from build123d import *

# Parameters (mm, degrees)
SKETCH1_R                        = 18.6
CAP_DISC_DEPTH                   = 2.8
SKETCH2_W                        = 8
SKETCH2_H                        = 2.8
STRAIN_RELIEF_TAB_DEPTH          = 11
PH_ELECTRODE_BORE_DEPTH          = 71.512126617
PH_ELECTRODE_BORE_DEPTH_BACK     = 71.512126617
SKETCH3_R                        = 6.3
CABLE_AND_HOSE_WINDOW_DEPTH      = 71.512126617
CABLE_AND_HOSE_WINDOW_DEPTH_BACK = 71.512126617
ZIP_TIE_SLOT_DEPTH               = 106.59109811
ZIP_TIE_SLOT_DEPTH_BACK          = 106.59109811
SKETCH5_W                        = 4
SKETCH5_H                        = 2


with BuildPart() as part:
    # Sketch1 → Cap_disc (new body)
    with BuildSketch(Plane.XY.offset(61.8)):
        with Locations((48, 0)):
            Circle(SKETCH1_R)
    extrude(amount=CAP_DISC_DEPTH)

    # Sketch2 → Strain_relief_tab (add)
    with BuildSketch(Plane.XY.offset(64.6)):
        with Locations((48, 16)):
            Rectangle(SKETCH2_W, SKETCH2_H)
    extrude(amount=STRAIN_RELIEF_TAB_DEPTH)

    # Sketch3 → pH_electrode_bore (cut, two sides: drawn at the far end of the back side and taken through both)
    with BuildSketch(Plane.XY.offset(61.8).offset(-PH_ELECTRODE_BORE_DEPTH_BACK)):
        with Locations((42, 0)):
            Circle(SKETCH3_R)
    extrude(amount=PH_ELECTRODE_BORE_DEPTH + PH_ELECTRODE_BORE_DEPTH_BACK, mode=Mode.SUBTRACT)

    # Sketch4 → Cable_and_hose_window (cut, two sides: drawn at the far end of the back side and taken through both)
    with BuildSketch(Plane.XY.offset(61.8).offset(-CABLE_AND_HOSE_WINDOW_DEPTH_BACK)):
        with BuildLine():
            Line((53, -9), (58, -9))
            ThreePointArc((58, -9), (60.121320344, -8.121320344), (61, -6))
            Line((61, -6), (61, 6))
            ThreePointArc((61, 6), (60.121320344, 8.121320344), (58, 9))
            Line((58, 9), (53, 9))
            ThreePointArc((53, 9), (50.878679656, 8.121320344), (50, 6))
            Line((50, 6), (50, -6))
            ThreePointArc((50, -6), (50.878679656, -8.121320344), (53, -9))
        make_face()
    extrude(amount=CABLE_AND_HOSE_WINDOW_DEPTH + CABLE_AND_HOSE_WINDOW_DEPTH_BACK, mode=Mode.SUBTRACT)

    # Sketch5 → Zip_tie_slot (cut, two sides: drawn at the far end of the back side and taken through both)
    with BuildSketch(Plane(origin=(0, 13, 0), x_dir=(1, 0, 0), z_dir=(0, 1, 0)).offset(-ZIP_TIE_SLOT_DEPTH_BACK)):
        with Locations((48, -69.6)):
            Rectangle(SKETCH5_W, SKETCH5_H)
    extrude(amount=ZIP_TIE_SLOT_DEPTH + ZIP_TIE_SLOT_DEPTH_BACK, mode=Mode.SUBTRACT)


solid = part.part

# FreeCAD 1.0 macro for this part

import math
import FreeCAD as App
import Part
import Sketcher

V = App.Vector


def add_polygon(sketch, points):
    """Adds a closed chain of lines whose ends are joined by coincident constraints."""
    first, n = sketch.GeometryCount, len(points)
    for a, b in zip(points, points[1:] + points[:1]):
        sketch.addGeometry(Part.LineSegment(App.Vector(*a, 0), App.Vector(*b, 0)), False)
    for i in range(n):
        sketch.addConstraint(Sketcher.Constraint("Coincident", first + i, 2, first + (i + 1) % n, 1))

doc = App.newDocument("Part")
body = doc.addObject("PartDesign::Body", "Body")

sketch1 = body.newObject("Sketcher::SketchObject", "Sketch")
sketch1.AttachmentSupport = (doc.getObject("XY_Plane"), [""])
sketch1.MapMode = "FlatFace"
sketch1.AttachmentOffset = App.Placement(V(0, 0, 61.8), App.Rotation())
sketch1.addGeometry(Part.Circle(V(48, 0, 0), V(0, 0, 1), 19), False)
sketch1.addConstraint(Sketcher.Constraint("PointOnObject", 0, 3, -1))
sketch1.addConstraint(Sketcher.Constraint("Diameter", 0, 37.2))
sketch1.addConstraint(Sketcher.Constraint("DistanceX", -1, 1, 0, 3, 48.0))
pad1 = body.newObject("PartDesign::Pad", "Pad")
pad1.Profile = sketch1
pad1.Length = 2.8

sketch2 = body.newObject("Sketcher::SketchObject", "Sketch001")
sketch2.AttachmentSupport = (doc.getObject("XY_Plane"), [""])
sketch2.MapMode = "FlatFace"
sketch2.AttachmentOffset = App.Placement(V(0, 0, 64.6), App.Rotation())
add_polygon(sketch2, [(44, 17.4), (44, 14.6), (52, 14.6), (52, 17.4)])
sketch2.addConstraint(Sketcher.Constraint("Vertical", 0))
sketch2.addConstraint(Sketcher.Constraint("Horizontal", 1))
sketch2.addConstraint(Sketcher.Constraint("Vertical", 2))
sketch2.addConstraint(Sketcher.Constraint("Horizontal", 3))
sketch2.addConstraint(Sketcher.Constraint("DistanceX", 1, 1, 1, 2, 8.0))
sketch2.addConstraint(Sketcher.Constraint("DistanceY", 0, 2, 0, 1, 2.8))
sketch2.addConstraint(Sketcher.Constraint("DistanceX", -1, 1, 0, 2, 44.0))
sketch2.addConstraint(Sketcher.Constraint("DistanceY", -1, 1, 0, 2, 14.6))
pad2 = body.newObject("PartDesign::Pad", "Pad001")
pad2.Profile = sketch2
pad2.Length = 11

sketch3 = body.newObject("Sketcher::SketchObject", "Sketch002")
sketch3.AttachmentSupport = (doc.getObject("XY_Plane"), [""])
sketch3.MapMode = "FlatFace"
sketch3.AttachmentOffset = App.Placement(V(0, 0, 61.8), App.Rotation())
sketch3.addGeometry(Part.Circle(V(42, 0, 0), V(0, 0, 1), 6), False)
sketch3.addConstraint(Sketcher.Constraint("PointOnObject", 0, 3, -1))
sketch3.addConstraint(Sketcher.Constraint("Diameter", 0, 12.6))
sketch3.addConstraint(Sketcher.Constraint("DistanceX", -1, 1, 0, 3, 42.0))
pocket1 = body.newObject("PartDesign::Pocket", "Pocket")
pocket1.Profile = sketch3
pocket1.Type = "ThroughAll"
pocket1.Midplane = True

sketch4 = body.newObject("Sketcher::SketchObject", "Sketch003")
sketch4.AttachmentSupport = (doc.getObject("XY_Plane"), [""])
sketch4.MapMode = "FlatFace"
sketch4.AttachmentOffset = App.Placement(V(0, 0, 61.8), App.Rotation())
sketch4.addGeometry(Part.LineSegment(V(53, -9, 0), V(58, -9, 0)), False)
sketch4.addGeometry(Part.ArcOfCircle(Part.Circle(V(58, -6, 0), V(0, 0, 1), 3), math.radians(-90), math.radians(0)), False)
sketch4.addGeometry(Part.LineSegment(V(61, -6, 0), V(61, 6, 0)), False)
sketch4.addGeometry(Part.ArcOfCircle(Part.Circle(V(58, 6, 0), V(0, 0, 1), 3), math.radians(0), math.radians(90)), False)
sketch4.addGeometry(Part.LineSegment(V(58, 9, 0), V(53, 9, 0)), False)
sketch4.addGeometry(Part.ArcOfCircle(Part.Circle(V(53, 6, 0), V(0, 0, 1), 3), math.radians(90), math.radians(180)), False)
sketch4.addGeometry(Part.LineSegment(V(50, 6, 0), V(50, -6, 0)), False)
sketch4.addGeometry(Part.ArcOfCircle(Part.Circle(V(53, -6, 0), V(0, 0, 1), 3), math.radians(180), math.radians(270)), False)
sketch4.addConstraint(Sketcher.Constraint("Tangent", 0, 2, 1, 1))
sketch4.addConstraint(Sketcher.Constraint("Tangent", 1, 2, 2, 1))
sketch4.addConstraint(Sketcher.Constraint("Tangent", 2, 2, 3, 1))
sketch4.addConstraint(Sketcher.Constraint("Tangent", 3, 2, 4, 1))
sketch4.addConstraint(Sketcher.Constraint("Tangent", 4, 2, 5, 1))
sketch4.addConstraint(Sketcher.Constraint("Tangent", 5, 2, 6, 1))
sketch4.addConstraint(Sketcher.Constraint("Tangent", 6, 2, 7, 1))
sketch4.addConstraint(Sketcher.Constraint("Tangent", 7, 2, 0, 1))
sketch4.addConstraint(Sketcher.Constraint("Horizontal", 0))
sketch4.addConstraint(Sketcher.Constraint("Vertical", 2))
sketch4.addConstraint(Sketcher.Constraint("Horizontal", 4))
sketch4.addConstraint(Sketcher.Constraint("Vertical", 6))
sketch4.addConstraint(Sketcher.Constraint("Equal", 1, 3))
sketch4.addConstraint(Sketcher.Constraint("Equal", 3, 5))
sketch4.addConstraint(Sketcher.Constraint("Equal", 5, 7))
sketch4.addConstraint(Sketcher.Constraint("Radius", 1, 3.0))
sketch4.addConstraint(Sketcher.Constraint("DistanceX", 0, 1, 0, 2, 5.0))
sketch4.addConstraint(Sketcher.Constraint("DistanceY", 2, 1, 2, 2, 12.0))
sketch4.addConstraint(Sketcher.Constraint("DistanceX", -1, 1, 1, 3, 58.0))
sketch4.addConstraint(Sketcher.Constraint("DistanceY", 1, 3, -1, 1, 6.0))
pocket2 = body.newObject("PartDesign::Pocket", "Pocket001")
pocket2.Profile = sketch4
pocket2.Type = "ThroughAll"
pocket2.Midplane = True

sketch5 = body.newObject("Sketcher::SketchObject", "Sketch004")
sketch5.AttachmentSupport = (doc.getObject("XZ_Plane"), [""])
sketch5.MapMode = "FlatFace"
sketch5.AttachmentOffset = App.Placement(V(0, 0, -13), App.Rotation())
add_polygon(sketch5, [(46, 68.6), (46, 70.6), (50, 70.6), (50, 68.6)])
sketch5.addConstraint(Sketcher.Constraint("Vertical", 0))
sketch5.addConstraint(Sketcher.Constraint("Horizontal", 1))
sketch5.addConstraint(Sketcher.Constraint("Vertical", 2))
sketch5.addConstraint(Sketcher.Constraint("Horizontal", 3))
sketch5.addConstraint(Sketcher.Constraint("DistanceX", 1, 1, 1, 2, 4.0))
sketch5.addConstraint(Sketcher.Constraint("DistanceY", 0, 1, 0, 2, 2.0))
sketch5.addConstraint(Sketcher.Constraint("DistanceX", -1, 1, 0, 2, 46.0))
sketch5.addConstraint(Sketcher.Constraint("DistanceY", -1, 1, 0, 2, 70.6))
pocket3 = body.newObject("PartDesign::Pocket", "Pocket002")
pocket3.Profile = sketch5
pocket3.Type = "ThroughAll"
pocket3.Midplane = True

doc.recompute()
